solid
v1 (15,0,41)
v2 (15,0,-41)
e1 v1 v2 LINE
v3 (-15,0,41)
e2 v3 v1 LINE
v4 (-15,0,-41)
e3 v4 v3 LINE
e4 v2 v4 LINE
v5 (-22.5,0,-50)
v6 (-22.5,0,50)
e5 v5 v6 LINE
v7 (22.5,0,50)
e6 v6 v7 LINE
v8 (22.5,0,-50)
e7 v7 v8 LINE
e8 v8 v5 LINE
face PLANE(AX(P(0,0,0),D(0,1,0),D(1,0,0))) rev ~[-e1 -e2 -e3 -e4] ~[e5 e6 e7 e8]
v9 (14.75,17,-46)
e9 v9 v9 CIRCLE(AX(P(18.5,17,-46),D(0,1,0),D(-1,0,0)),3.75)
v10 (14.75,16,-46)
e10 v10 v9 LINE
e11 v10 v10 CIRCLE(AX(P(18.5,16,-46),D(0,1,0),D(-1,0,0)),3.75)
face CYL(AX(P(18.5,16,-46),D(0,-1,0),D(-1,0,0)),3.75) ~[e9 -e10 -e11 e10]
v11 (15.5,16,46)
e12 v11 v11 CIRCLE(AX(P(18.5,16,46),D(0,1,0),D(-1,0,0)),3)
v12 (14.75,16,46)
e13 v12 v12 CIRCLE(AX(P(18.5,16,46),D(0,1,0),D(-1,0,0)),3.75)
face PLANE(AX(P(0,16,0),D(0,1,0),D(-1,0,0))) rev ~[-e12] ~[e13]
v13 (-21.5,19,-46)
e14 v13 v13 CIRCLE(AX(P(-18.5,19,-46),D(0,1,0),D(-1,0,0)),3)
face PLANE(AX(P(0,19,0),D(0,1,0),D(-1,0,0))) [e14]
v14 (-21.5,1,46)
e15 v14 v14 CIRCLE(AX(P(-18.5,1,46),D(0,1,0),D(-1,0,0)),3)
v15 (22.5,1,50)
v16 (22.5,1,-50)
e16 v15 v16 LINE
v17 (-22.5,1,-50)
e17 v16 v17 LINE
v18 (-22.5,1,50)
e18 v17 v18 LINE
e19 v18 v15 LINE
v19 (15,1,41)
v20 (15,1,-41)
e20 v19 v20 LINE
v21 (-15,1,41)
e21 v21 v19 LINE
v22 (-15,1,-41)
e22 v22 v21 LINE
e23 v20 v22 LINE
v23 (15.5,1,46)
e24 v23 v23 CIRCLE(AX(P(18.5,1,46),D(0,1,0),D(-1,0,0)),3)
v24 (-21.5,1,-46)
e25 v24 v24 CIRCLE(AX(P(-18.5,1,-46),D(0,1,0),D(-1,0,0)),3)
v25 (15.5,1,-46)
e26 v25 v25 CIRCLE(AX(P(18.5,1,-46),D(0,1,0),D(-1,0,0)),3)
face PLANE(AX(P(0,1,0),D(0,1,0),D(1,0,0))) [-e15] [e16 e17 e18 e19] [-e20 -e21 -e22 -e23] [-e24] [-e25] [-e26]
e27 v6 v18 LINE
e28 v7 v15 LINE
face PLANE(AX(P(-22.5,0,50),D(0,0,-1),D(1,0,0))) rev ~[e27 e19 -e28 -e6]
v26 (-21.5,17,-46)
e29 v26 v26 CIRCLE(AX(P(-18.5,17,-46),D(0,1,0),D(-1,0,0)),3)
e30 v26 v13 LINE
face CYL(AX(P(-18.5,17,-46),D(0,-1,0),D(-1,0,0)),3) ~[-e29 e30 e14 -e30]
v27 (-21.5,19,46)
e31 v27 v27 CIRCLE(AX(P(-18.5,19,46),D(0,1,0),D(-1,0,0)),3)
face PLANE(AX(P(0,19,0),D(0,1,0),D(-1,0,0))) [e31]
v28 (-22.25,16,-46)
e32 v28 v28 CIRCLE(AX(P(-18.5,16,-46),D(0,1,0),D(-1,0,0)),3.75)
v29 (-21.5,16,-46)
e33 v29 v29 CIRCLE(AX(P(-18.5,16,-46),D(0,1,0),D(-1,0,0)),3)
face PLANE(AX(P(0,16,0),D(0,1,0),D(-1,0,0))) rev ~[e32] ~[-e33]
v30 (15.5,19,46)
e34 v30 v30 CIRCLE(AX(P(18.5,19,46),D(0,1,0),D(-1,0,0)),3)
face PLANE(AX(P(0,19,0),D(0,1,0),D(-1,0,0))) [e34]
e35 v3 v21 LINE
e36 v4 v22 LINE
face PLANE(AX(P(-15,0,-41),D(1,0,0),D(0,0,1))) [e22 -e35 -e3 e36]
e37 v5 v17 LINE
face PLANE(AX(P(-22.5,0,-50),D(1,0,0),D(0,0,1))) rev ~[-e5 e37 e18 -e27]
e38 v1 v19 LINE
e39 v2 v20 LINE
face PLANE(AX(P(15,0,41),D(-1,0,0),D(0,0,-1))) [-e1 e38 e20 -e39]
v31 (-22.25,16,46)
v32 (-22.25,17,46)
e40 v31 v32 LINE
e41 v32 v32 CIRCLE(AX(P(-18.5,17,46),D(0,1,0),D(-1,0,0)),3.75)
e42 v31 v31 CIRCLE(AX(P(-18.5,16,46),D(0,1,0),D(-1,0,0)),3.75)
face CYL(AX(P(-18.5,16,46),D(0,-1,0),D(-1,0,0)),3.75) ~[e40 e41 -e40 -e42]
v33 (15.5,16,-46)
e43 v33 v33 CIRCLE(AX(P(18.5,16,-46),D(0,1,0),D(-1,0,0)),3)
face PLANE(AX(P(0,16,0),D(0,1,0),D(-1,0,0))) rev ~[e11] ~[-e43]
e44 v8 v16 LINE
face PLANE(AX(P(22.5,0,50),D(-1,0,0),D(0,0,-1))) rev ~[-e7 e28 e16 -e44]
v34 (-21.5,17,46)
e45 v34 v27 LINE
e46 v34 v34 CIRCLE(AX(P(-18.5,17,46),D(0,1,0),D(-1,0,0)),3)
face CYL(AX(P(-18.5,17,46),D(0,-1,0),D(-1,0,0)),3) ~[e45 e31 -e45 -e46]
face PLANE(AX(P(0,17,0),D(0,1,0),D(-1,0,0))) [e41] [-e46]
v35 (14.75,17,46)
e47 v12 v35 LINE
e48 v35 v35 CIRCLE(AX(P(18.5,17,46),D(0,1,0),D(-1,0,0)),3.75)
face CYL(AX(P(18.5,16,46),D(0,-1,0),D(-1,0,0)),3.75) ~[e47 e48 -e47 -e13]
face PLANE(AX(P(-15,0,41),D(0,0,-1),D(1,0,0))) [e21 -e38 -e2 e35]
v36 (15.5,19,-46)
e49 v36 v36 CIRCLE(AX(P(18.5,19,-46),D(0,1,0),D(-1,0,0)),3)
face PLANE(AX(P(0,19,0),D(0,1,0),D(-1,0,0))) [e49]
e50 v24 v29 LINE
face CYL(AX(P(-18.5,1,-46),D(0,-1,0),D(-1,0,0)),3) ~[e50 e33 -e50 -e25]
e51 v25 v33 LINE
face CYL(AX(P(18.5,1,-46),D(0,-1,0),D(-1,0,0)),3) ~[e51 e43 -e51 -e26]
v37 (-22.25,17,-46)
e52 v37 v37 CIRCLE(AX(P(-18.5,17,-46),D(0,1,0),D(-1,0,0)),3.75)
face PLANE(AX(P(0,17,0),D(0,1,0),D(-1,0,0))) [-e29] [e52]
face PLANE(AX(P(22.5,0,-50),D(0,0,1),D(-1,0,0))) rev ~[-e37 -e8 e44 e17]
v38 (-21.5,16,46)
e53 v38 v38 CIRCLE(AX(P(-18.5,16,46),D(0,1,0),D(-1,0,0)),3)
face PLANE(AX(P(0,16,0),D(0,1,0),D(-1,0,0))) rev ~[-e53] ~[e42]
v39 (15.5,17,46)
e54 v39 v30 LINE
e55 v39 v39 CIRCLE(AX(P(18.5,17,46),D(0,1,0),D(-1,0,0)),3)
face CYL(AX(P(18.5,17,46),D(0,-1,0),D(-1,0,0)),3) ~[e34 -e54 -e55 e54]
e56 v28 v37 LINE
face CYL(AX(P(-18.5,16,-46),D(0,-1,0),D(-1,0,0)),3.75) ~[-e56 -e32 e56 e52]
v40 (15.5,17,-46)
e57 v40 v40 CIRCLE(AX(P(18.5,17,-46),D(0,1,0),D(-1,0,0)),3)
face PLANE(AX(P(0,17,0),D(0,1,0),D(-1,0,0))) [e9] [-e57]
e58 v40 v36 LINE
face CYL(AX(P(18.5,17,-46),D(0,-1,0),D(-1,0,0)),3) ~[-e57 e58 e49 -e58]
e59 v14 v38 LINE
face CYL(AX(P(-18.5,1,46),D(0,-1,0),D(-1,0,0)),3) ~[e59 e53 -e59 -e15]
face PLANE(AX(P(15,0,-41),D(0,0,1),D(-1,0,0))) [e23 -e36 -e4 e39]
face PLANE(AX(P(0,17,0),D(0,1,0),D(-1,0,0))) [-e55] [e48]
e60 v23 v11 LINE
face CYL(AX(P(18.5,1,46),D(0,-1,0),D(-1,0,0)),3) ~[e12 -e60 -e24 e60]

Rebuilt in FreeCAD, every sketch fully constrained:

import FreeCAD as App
import Part
import Sketcher

V = App.Vector

doc = App.newDocument("Part")
body = doc.addObject("PartDesign::Body", "Body")

sketch1 = body.newObject("Sketcher::SketchObject", "Sketch")
sketch1.AttachmentSupport = (doc.getObject("XZ_Plane"), [""])
sketch1.MapMode = "FlatFace"
sketch1.addGeometry(Part.LineSegment(V(22, 50, 0), V(22, -50, 0)), False)
sketch1.addGeometry(Part.LineSegment(V(22, -50, 0), V(-22, -50, 0)), False)
sketch1.addGeometry(Part.LineSegment(V(-22, -50, 0), V(-22, 50, 0)), False)
sketch1.addGeometry(Part.LineSegment(V(-22, 50, 0), V(22, 50, 0)), False)
sketch1.addGeometry(Part.LineSegment(V(-15, -41, 0), V(15, -41, 0)), False)
sketch1.addGeometry(Part.LineSegment(V(15, -41, 0), V(15, 41, 0)), False)
sketch1.addGeometry(Part.LineSegment(V(15, 41, 0), V(-15, 41, 0)), False)
sketch1.addGeometry(Part.LineSegment(V(-15, 41, 0), V(-15, -41, 0)), False)
sketch1.addConstraint(Sketcher.Constraint("Coincident", 0, 2, 1, 1))
sketch1.addConstraint(Sketcher.Constraint("Coincident", 1, 2, 2, 1))
sketch1.addConstraint(Sketcher.Constraint("Coincident", 2, 2, 3, 1))
sketch1.addConstraint(Sketcher.Constraint("Coincident", 3, 2, 0, 1))
sketch1.addConstraint(Sketcher.Constraint("Coincident", 4, 2, 5, 1))
sketch1.addConstraint(Sketcher.Constraint("Coincident", 5, 2, 6, 1))
sketch1.addConstraint(Sketcher.Constraint("Coincident", 6, 2, 7, 1))
sketch1.addConstraint(Sketcher.Constraint("Coincident", 7, 2, 4, 1))
sketch1.addConstraint(Sketcher.Constraint("Vertical", 0))
sketch1.addConstraint(Sketcher.Constraint("Horizontal", 1))
sketch1.addConstraint(Sketcher.Constraint("Vertical", 2))
sketch1.addConstraint(Sketcher.Constraint("Horizontal", 3))
sketch1.addConstraint(Sketcher.Constraint("Horizontal", 4))
sketch1.addConstraint(Sketcher.Constraint("Vertical", 5))
sketch1.addConstraint(Sketcher.Constraint("Horizontal", 6))
sketch1.addConstraint(Sketcher.Constraint("Vertical", 7))
sketch1.addConstraint(Sketcher.Constraint("Symmetric", 0, 2, 2, 2, -1, 1))
sketch1.addConstraint(Sketcher.Constraint("Symmetric", 4, 2, 6, 2, -1, 1))
sketch1.addConstraint(Sketcher.Constraint("DistanceX", 1, 2, 1, 1, 45.0))
sketch1.addConstraint(Sketcher.Constraint("DistanceX", 4, 1, 4, 2, 30.0))
sketch1.addConstraint(Sketcher.Constraint("DistanceY", 0, 2, 0, 1, 100.0))
sketch1.addConstraint(Sketcher.Constraint("DistanceY", 5, 1, 5, 2, 82.0))
pad1 = body.newObject("PartDesign::Pad", "Pad")
pad1.Profile = sketch1
pad1.Length = 1
pad1.Reversed = True

sketch2 = body.newObject("Sketcher::SketchObject", "Sketch001")
sketch2.AttachmentSupport = (doc.getObject("XZ_Plane"), [""])
sketch2.MapMode = "FlatFace"
sketch2.AttachmentOffset = App.Placement(V(0, 0, -1), App.Rotation())
sketch2.addGeometry(Part.Circle(V(-18.5, -46, 0), V(0, 0, 1), 3), False)
sketch2.addGeometry(Part.Circle(V(18.5, -46, 0), V(0, 0, 1), 3), False)
sketch2.addGeometry(Part.Circle(V(18.5, 46, 0), V(0, 0, 1), 3), False)
sketch2.addGeometry(Part.Circle(V(-18.5, 46, 0), V(0, 0, 1), 3), False)
sketch2.addConstraint(Sketcher.Constraint("Equal", 0, 1))
sketch2.addConstraint(Sketcher.Constraint("Equal", 1, 2))
sketch2.addConstraint(Sketcher.Constraint("Equal", 2, 3))
sketch2.addConstraint(Sketcher.Constraint("Symmetric", 0, 3, 2, 3, -1, 1))
sketch2.addConstraint(Sketcher.Constraint("Symmetric", 1, 3, 3, 3, -1, 1))
sketch2.addConstraint(Sketcher.Constraint("Symmetric", 0, 3, 1, 3, -2))
sketch2.addConstraint(Sketcher.Constraint("Diameter", 0, 6.0))
sketch2.addConstraint(Sketcher.Constraint("DistanceY", 0, 3, -1, 1, 46.0))
sketch2.addConstraint(Sketcher.Constraint("DistanceX", 0, 3, 1, 3, 37.0))
pad2 = body.newObject("PartDesign::Pad", "Pad001")
pad2.Profile = sketch2
pad2.Length = 15
pad2.Reversed = True

sketch3 = body.newObject("Sketcher::SketchObject", "Sketch002")
sketch3.AttachmentSupport = (doc.getObject("XZ_Plane"), [""])
sketch3.MapMode = "FlatFace"
sketch3.AttachmentOffset = App.Placement(V(0, 0, -16), App.Rotation())
sketch3.addGeometry(Part.Circle(V(-18.5, -46, 0), V(0, 0, 1), 3.8), False)
sketch3.addGeometry(Part.Circle(V(18.5, -46, 0), V(0, 0, 1), 3.8), False)
sketch3.addGeometry(Part.Circle(V(-18.5, 46, 0), V(0, 0, 1), 3.8), False)
sketch3.addGeometry(Part.Circle(V(18.5, 46, 0), V(0, 0, 1), 3.8), False)
sketch3.addConstraint(Sketcher.Constraint("Equal", 0, 1))
sketch3.addConstraint(Sketcher.Constraint("Equal", 1, 2))
sketch3.addConstraint(Sketcher.Constraint("Equal", 2, 3))
sketch3.addConstraint(Sketcher.Constraint("Symmetric", 1, 3, 2, 3, -1, 1))
sketch3.addConstraint(Sketcher.Constraint("Symmetric", 0, 3, 3, 3, -1, 1))
sketch3.addConstraint(Sketcher.Constraint("Symmetric", 0, 3, 1, 3, -2))
sketch3.addConstraint(Sketcher.Constraint("Diameter", 0, 7.5))
sketch3.addConstraint(Sketcher.Constraint("DistanceY", 0, 3, -1, 1, 46.0))
sketch3.addConstraint(Sketcher.Constraint("DistanceX", 0, 3, 1, 3, 37.0))
pad3 = body.newObject("PartDesign::Pad", "Pad002")
pad3.Profile = sketch3
pad3.Length = 1
pad3.Reversed = True

sketch4 = body.newObject("Sketcher::SketchObject", "Sketch003")
sketch4.AttachmentSupport = (doc.getObject("XZ_Plane"), [""])
sketch4.MapMode = "FlatFace"
sketch4.AttachmentOffset = App.Placement(V(0, 0, -17), App.Rotation())
sketch4.addGeometry(Part.Circle(V(18.5, -46, 0), V(0, 0, 1), 3), False)
sketch4.addGeometry(Part.Circle(V(-18.5, -46, 0), V(0, 0, 1), 3), False)
sketch4.addGeometry(Part.Circle(V(18.5, 46, 0), V(0, 0, 1), 3), False)
sketch4.addGeometry(Part.Circle(V(-18.5, 46, 0), V(0, 0, 1), 3), False)
sketch4.addConstraint(Sketcher.Constraint("Equal", 0, 1))
sketch4.addConstraint(Sketcher.Constraint("Equal", 1, 2))
sketch4.addConstraint(Sketcher.Constraint("Equal", 2, 3))
sketch4.addConstraint(Sketcher.Constraint("Symmetric", 1, 3, 2, 3, -1, 1))
sketch4.addConstraint(Sketcher.Constraint("Symmetric", 0, 3, 3, 3, -1, 1))
sketch4.addConstraint(Sketcher.Constraint("Symmetric", 0, 3, 1, 3, -2))
sketch4.addConstraint(Sketcher.Constraint("Diameter", 0, 6.0))
sketch4.addConstraint(Sketcher.Constraint("DistanceY", 0, 3, -1, 1, 46.0))
sketch4.addConstraint(Sketcher.Constraint("DistanceX", 1, 3, 0, 3, 37.0))
pad4 = body.newObject("PartDesign::Pad", "Pad003")
pad4.Profile = sketch4
pad4.Length = 2
pad4.Reversed = True

doc.recompute()
